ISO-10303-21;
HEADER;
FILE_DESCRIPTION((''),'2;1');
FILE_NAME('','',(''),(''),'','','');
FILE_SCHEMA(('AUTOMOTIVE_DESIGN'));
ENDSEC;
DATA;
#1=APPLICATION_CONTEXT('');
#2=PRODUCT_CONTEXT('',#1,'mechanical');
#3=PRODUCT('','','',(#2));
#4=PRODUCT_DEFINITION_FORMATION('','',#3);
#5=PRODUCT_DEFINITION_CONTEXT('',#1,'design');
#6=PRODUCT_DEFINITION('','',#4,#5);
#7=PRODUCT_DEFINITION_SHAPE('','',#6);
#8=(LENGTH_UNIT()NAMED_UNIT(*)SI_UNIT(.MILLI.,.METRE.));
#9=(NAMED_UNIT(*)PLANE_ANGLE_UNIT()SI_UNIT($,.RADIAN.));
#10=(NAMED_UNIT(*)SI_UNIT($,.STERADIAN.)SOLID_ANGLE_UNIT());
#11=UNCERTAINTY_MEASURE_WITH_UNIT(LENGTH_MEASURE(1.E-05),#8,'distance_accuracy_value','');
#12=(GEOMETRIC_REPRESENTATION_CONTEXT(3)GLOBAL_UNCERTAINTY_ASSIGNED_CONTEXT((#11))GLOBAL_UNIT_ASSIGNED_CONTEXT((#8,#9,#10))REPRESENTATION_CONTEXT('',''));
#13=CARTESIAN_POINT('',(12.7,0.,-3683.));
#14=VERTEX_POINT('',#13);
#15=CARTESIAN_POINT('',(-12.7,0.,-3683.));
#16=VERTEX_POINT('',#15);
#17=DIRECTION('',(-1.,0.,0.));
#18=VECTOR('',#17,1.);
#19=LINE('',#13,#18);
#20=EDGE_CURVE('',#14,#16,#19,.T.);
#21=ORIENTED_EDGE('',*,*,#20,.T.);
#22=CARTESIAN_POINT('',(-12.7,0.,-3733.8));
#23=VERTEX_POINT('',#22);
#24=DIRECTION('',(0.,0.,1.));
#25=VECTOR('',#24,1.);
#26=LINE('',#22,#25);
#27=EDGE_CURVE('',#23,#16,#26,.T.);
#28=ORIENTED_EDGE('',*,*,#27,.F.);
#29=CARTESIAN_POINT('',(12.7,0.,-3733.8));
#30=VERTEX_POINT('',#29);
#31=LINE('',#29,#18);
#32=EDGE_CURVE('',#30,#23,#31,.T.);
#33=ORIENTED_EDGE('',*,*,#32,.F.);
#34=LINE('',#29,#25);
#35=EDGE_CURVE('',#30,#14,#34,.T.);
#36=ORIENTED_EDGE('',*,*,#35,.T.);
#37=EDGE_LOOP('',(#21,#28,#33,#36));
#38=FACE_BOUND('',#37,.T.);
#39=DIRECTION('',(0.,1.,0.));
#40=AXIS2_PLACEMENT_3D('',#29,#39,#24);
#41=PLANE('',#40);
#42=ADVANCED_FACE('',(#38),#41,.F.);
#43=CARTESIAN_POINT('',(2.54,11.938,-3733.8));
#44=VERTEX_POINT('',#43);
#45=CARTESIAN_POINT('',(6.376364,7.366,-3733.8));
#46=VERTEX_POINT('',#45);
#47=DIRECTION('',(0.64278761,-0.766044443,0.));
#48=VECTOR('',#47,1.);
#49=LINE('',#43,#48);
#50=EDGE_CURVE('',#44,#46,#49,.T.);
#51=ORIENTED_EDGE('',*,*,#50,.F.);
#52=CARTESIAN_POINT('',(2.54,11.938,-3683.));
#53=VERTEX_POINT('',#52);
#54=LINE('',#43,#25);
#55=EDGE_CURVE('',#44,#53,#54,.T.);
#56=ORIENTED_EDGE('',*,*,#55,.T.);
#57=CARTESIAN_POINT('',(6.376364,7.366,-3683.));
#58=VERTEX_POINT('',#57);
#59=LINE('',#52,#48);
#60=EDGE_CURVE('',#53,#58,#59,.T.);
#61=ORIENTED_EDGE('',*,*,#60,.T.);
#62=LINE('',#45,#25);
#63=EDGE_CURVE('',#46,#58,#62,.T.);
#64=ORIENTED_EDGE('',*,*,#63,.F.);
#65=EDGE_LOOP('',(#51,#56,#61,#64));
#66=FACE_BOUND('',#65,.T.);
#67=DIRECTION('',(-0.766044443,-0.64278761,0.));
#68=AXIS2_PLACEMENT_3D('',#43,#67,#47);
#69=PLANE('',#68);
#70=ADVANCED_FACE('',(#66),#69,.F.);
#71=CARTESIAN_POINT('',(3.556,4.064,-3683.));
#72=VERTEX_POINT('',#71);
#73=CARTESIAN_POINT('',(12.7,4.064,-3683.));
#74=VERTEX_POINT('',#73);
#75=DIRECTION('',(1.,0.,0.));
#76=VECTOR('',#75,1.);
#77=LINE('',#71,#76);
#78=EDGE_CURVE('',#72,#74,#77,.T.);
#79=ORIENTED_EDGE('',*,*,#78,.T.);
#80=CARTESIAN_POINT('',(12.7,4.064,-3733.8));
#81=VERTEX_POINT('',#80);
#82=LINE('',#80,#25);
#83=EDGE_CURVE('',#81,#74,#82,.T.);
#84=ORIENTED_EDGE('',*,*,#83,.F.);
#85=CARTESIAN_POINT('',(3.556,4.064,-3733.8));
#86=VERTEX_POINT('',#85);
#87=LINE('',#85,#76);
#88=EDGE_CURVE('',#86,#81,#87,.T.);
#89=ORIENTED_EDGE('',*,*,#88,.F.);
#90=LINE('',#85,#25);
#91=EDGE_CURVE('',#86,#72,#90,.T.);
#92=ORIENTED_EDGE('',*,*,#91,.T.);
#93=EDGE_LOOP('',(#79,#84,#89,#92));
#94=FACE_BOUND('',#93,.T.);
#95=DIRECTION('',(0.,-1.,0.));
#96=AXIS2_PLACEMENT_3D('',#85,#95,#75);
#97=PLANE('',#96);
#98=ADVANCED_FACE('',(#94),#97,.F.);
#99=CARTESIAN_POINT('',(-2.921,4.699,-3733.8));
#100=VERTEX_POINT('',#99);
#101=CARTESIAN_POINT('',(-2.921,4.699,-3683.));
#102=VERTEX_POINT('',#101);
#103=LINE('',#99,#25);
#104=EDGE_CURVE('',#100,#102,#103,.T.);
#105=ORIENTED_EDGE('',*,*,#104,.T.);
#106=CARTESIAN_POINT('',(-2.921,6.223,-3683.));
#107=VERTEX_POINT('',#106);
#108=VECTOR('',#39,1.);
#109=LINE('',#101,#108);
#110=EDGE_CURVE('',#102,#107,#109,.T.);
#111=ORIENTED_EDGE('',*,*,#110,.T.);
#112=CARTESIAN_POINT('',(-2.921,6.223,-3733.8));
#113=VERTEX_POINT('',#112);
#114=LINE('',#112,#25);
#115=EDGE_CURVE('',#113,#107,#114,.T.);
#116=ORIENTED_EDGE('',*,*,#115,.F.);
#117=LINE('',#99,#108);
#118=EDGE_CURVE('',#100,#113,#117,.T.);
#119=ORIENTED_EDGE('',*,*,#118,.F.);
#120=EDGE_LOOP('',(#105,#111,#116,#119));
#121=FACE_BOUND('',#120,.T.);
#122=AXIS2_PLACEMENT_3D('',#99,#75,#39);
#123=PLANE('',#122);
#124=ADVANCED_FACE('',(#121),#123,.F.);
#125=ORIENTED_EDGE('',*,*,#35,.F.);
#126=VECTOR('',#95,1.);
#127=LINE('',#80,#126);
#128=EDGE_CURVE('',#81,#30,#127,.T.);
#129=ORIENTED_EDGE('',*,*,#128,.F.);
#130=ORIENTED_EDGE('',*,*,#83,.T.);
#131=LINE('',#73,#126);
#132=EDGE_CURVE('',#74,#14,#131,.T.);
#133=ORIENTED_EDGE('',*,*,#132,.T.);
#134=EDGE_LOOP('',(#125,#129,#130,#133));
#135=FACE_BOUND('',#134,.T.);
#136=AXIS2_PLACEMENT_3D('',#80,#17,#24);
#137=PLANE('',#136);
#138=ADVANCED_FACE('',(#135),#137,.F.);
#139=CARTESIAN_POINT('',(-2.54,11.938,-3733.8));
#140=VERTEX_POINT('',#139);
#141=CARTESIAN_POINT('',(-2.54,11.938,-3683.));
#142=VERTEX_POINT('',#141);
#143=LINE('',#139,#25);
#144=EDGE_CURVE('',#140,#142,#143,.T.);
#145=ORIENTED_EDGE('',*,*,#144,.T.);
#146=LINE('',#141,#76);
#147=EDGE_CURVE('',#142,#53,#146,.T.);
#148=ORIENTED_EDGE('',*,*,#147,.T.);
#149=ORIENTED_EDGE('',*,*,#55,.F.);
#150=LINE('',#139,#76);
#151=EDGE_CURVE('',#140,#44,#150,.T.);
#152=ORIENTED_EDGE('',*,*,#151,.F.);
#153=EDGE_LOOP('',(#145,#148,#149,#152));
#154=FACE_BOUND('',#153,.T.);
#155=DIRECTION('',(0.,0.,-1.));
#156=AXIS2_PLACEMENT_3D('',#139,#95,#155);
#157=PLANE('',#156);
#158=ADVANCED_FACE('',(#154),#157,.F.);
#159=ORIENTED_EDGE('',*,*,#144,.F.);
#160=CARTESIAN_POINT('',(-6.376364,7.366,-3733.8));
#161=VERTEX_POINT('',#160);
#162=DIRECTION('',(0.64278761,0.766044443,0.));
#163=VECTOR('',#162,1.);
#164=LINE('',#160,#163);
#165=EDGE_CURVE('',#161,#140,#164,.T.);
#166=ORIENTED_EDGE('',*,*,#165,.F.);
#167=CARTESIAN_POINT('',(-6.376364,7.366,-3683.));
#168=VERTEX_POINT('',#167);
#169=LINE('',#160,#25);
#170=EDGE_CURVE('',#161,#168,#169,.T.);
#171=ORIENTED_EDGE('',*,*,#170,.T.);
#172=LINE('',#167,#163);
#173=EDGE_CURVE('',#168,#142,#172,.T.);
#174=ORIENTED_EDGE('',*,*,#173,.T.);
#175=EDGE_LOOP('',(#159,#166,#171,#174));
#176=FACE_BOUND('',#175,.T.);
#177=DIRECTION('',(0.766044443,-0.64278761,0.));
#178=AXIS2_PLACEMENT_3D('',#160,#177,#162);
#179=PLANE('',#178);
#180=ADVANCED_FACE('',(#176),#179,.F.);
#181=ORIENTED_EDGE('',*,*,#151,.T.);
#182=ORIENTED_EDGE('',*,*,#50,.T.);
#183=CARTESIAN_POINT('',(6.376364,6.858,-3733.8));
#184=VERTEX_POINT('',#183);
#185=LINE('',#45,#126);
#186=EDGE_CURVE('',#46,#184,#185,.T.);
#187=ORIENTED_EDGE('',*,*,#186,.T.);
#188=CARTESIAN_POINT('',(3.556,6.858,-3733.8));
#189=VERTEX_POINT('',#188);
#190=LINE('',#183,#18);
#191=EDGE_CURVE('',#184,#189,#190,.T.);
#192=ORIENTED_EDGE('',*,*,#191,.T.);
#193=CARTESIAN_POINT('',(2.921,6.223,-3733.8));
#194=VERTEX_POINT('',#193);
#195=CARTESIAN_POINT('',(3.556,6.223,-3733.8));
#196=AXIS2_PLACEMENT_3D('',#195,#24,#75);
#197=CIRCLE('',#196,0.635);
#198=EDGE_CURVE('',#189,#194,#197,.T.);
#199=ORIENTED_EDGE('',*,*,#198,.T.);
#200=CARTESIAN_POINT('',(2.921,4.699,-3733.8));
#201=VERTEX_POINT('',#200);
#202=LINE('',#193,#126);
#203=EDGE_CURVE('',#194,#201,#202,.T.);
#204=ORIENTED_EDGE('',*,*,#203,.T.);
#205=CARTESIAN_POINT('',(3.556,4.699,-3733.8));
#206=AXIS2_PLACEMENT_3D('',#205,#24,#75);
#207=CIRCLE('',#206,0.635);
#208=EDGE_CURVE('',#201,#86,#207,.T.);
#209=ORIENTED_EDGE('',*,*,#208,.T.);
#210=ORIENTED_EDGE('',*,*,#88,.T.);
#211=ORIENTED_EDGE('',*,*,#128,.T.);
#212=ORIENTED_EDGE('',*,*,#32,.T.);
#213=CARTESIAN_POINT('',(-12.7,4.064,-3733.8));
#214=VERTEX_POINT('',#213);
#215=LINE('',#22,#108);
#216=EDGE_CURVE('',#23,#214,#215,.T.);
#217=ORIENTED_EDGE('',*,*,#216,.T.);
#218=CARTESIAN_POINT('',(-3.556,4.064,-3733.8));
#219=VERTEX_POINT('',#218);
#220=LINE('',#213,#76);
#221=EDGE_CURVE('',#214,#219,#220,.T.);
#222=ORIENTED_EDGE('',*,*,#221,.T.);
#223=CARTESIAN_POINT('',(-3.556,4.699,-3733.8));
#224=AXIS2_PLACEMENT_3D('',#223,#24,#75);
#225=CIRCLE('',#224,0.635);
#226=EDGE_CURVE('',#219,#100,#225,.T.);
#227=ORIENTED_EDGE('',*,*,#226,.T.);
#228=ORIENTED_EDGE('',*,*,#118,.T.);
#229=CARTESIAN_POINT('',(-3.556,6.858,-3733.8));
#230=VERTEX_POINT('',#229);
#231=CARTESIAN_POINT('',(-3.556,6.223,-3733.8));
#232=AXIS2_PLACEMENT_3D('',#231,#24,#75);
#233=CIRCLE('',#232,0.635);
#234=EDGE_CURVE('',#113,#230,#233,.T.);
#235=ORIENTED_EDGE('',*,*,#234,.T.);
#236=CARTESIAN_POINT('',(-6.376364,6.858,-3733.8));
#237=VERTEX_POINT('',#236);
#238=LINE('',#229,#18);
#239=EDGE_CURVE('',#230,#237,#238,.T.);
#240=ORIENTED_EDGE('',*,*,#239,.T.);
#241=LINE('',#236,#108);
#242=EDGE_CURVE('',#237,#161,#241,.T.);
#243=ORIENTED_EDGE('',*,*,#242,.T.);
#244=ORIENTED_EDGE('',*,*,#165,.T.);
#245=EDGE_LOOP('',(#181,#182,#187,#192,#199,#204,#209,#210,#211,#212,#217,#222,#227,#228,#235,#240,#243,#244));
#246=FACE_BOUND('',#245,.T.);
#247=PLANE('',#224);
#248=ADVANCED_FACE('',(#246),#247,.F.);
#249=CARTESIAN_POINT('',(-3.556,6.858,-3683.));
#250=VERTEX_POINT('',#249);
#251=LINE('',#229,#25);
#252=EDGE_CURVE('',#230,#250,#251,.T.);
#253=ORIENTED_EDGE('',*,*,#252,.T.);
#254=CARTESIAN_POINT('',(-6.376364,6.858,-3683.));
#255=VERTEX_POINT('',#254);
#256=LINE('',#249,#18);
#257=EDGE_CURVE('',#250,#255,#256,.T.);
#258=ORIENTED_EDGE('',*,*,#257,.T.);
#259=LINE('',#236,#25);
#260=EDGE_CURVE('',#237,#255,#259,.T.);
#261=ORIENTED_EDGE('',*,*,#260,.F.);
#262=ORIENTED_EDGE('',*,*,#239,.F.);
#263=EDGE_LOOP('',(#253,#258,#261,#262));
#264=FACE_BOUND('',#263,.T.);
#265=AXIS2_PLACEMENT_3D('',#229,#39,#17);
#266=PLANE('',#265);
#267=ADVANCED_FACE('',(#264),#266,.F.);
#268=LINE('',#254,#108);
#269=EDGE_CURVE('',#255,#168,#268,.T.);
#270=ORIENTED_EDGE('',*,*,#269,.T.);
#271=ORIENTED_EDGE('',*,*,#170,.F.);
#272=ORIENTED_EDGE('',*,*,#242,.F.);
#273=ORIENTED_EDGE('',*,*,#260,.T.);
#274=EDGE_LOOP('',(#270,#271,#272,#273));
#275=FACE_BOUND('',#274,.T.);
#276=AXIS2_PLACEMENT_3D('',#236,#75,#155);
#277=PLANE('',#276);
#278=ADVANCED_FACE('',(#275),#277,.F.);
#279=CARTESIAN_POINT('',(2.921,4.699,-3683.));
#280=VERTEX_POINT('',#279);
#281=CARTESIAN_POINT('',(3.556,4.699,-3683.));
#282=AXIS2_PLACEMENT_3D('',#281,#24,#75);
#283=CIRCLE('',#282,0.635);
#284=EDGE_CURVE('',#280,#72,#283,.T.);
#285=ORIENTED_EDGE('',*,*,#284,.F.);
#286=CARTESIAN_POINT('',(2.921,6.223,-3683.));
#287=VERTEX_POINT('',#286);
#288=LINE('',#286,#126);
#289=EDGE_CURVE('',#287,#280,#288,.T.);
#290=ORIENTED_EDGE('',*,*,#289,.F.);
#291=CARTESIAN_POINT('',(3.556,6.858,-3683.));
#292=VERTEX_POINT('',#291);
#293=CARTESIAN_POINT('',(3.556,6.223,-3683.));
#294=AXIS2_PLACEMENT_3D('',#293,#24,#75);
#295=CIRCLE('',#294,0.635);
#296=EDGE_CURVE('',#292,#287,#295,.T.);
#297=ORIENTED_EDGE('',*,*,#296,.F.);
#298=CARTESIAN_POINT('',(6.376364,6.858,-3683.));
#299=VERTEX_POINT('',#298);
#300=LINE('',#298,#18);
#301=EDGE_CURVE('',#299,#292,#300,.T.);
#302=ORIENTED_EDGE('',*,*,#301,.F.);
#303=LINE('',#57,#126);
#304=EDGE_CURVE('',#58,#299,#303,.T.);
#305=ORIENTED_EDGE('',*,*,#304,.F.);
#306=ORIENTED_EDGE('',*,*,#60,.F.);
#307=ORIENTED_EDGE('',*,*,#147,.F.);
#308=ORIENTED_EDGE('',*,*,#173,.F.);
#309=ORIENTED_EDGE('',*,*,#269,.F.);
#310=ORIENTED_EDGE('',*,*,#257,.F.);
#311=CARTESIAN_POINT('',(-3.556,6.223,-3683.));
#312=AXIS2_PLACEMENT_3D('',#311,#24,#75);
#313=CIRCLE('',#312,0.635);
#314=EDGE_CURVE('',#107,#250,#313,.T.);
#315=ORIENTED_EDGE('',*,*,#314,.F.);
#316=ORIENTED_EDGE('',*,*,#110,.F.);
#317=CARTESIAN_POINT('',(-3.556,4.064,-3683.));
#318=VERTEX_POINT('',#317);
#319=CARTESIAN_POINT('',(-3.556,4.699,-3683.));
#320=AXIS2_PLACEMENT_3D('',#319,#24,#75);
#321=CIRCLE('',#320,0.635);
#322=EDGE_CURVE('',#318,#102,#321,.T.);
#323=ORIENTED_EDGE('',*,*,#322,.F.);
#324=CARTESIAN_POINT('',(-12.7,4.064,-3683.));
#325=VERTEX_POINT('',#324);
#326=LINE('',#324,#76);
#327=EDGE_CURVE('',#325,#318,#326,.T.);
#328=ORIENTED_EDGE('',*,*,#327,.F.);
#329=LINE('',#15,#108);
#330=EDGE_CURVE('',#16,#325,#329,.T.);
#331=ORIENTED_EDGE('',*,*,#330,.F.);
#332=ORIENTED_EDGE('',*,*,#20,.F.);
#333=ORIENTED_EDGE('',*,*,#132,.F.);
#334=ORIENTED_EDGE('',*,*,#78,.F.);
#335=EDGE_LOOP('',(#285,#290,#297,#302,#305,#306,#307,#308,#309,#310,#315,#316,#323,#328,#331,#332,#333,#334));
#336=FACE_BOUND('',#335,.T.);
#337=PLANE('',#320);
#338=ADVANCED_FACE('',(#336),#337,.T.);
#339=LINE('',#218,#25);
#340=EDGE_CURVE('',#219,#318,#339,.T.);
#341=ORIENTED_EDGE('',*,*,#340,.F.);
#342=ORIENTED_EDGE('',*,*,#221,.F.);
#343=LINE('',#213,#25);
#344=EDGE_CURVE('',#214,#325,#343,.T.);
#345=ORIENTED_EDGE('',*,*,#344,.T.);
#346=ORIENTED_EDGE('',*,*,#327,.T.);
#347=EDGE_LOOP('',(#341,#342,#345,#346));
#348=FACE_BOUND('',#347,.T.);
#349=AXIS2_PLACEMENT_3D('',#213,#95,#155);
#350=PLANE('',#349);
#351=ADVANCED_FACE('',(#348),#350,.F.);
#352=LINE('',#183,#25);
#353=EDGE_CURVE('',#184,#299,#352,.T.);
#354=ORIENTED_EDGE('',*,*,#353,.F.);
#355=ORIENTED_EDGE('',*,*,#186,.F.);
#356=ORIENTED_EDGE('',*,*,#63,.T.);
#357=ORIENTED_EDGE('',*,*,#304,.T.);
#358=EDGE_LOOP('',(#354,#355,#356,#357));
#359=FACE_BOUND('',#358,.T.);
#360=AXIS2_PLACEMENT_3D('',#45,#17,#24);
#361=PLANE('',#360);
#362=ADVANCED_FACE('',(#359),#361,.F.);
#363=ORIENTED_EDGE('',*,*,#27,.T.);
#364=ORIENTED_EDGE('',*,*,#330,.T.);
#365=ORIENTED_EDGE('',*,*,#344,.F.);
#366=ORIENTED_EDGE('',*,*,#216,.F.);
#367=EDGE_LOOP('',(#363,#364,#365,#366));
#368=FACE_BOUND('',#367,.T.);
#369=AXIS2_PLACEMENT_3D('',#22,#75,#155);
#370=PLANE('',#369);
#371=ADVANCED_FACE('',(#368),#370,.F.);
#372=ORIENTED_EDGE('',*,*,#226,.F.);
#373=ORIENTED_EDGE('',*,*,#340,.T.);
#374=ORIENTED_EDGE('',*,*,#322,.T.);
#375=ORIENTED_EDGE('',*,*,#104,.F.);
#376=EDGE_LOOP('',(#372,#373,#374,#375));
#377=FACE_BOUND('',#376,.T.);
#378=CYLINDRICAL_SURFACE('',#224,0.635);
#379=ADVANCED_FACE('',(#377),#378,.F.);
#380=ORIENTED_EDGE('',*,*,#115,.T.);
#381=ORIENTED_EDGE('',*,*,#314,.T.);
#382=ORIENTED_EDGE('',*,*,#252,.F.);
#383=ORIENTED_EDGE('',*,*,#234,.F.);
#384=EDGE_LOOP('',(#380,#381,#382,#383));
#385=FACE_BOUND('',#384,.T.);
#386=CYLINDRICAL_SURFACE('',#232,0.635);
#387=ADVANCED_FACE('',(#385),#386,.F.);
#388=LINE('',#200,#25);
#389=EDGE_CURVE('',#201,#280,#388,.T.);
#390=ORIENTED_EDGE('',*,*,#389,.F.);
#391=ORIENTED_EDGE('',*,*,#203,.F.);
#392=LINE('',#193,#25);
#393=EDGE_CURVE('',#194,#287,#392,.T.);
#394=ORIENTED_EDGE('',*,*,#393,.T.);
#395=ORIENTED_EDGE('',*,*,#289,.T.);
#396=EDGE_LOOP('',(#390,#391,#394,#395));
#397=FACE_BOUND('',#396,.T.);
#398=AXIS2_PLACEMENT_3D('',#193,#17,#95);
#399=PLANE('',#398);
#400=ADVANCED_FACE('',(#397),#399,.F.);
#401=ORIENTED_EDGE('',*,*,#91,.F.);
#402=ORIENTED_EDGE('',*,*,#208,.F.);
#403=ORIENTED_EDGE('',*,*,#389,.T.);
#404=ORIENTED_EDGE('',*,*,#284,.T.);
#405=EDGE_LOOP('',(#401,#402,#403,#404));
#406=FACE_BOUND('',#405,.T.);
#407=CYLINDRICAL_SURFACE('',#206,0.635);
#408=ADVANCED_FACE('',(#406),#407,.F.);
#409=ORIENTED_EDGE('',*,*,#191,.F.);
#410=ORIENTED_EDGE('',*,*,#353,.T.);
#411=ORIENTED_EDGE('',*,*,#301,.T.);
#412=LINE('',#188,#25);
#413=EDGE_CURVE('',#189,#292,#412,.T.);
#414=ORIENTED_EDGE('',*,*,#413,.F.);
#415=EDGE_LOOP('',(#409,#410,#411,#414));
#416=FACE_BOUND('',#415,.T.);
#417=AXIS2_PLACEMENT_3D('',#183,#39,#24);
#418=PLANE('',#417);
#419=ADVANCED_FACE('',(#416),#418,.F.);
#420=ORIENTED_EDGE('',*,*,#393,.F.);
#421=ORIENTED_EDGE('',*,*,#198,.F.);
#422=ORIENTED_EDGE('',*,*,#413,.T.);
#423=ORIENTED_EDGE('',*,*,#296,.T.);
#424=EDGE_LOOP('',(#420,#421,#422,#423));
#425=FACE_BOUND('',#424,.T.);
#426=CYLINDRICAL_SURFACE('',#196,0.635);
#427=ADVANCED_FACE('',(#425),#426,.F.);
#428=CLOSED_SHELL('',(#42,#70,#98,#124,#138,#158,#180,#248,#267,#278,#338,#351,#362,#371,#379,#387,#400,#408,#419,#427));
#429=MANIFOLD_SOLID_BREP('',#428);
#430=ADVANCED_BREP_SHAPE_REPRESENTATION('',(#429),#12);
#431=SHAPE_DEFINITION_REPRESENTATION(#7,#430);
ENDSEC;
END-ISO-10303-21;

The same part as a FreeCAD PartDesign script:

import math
import FreeCAD as App
import Part
import Sketcher

V = App.Vector
Q = App.Units.Quantity

doc = App.newDocument("Part")
body = doc.addObject("PartDesign::Body", "Body")

# Sketch on XY plane
sketch1 = doc.addObject("Sketcher::SketchObject", "Sketch")
body.addObject(sketch1)
sketch1.AttachmentSupport = (doc.XY_Plane, [""])
sketch1.MapMode = "FlatFace"
sketch1.AttachmentOffset = App.Placement(V(0, 0, -145 * 25.4), App.Rotation())
sketch1.addGeometry([
    Part.LineSegment(V(-12.7, 4.064, 0), V(-3.556, 4.064, 0)),  # 0
    Part.ArcOfCircle(Part.Circle(V(-3.556, 4.699, 0), V(0, 0, 1), 0.635), math.radians(-90), math.radians(0)),  # 1
    Part.LineSegment(V(-2.921, 4.699, 0), V(-2.921, 6.223, 0)),  # 2
    Part.ArcOfCircle(Part.Circle(V(-3.556, 6.223, 0), V(0, 0, 1), 0.635), math.radians(0), math.radians(90)),  # 3
    Part.LineSegment(V(-3.556, 6.858, 0), V(-6.376364, 6.858, 0)),  # 4
    Part.LineSegment(V(-6.376364, 6.858, 0), V(-6.376364, 7.366, 0)),  # 5
    Part.LineSegment(V(-6.376364, 7.366, 0), V(-2.54, 11.938, 0)),  # 6
    Part.LineSegment(V(-2.54, 11.938, 0), V(2.54, 11.938, 0)),  # 7
    Part.LineSegment(V(2.54, 11.938, 0), V(6.376364, 7.366, 0)),  # 8
    Part.LineSegment(V(6.376364, 7.366, 0), V(6.376364, 6.858, 0)),  # 9
    Part.LineSegment(V(6.376364, 6.858, 0), V(3.556, 6.858, 0)),  # 10
    Part.ArcOfCircle(Part.Circle(V(3.556, 6.223, 0), V(0, 0, 1), 0.635), math.radians(90), math.radians(180)),  # 11
    Part.LineSegment(V(2.921, 6.223, 0), V(2.921, 4.699, 0)),  # 12
    Part.ArcOfCircle(Part.Circle(V(3.556, 4.699, 0), V(0, 0, 1), 0.635), math.radians(180), math.radians(270)),  # 13
    Part.LineSegment(V(3.556, 4.064, 0), V(12.7, 4.064, 0)),  # 14
    Part.LineSegment(V(12.7, 4.064, 0), V(12.7, 0, 0)),  # 15
    Part.LineSegment(V(12.7, 0, 0), V(-12.7, 0, 0)),  # 16
    Part.LineSegment(V(-12.7, 0, 0), V(-12.7, 4.064, 0)),  # 17
], False)
sketch1.addConstraint([
    Sketcher.Constraint("Tangent", 0, 2, 1, 1),
    Sketcher.Constraint("Tangent", 1, 2, 2, 1),
    Sketcher.Constraint("Tangent", 2, 2, 3, 1),
    Sketcher.Constraint("Tangent", 3, 2, 4, 1),
    Sketcher.Constraint("Coincident", 4, 2, 5, 1),
    Sketcher.Constraint("Coincident", 5, 2, 6, 1),
    Sketcher.Constraint("Coincident", 6, 2, 7, 1),
    Sketcher.Constraint("Coincident", 7, 2, 8, 1),
    Sketcher.Constraint("Coincident", 8, 2, 9, 1),
    Sketcher.Constraint("Coincident", 9, 2, 10, 1),
    Sketcher.Constraint("Tangent", 10, 2, 11, 1),
    Sketcher.Constraint("Tangent", 11, 2, 12, 1),
    Sketcher.Constraint("Tangent", 12, 2, 13, 1),
    Sketcher.Constraint("Tangent", 13, 2, 14, 1),
    Sketcher.Constraint("Coincident", 14, 2, 15, 1),
    Sketcher.Constraint("Coincident", 15, 2, 16, 1),
    Sketcher.Constraint("Coincident", 16, 2, 17, 1),
    Sketcher.Constraint("Coincident", 17, 2, 0, 1),
    Sketcher.Constraint("Horizontal", 0),
    Sketcher.Constraint("Vertical", 2),
    Sketcher.Constraint("Horizontal", 4),
    Sketcher.Constraint("Vertical", 5),
    Sketcher.Constraint("Horizontal", 7),
    Sketcher.Constraint("Vertical", 9),
    Sketcher.Constraint("Horizontal", 10),
    Sketcher.Constraint("Vertical", 12),
    Sketcher.Constraint("Horizontal", 14),
    Sketcher.Constraint("Vertical", 15),
    Sketcher.Constraint("Horizontal", 16),
    Sketcher.Constraint("Vertical", 17),
    Sketcher.Constraint("Equal", 1, 3),
    Sketcher.Constraint("Equal", 3, 11),
    Sketcher.Constraint("Equal", 11, 13),
    Sketcher.Constraint("Symmetric", 15, 2, 16, 2, -1, 1),
    Sketcher.Constraint("Symmetric", 3, 3, 11, 3, -2),
    Sketcher.Constraint("Symmetric", 5, 2, 8, 2, -2),
    Sketcher.Constraint("Horizontal", 1, 3, 13, 3),
    Sketcher.Constraint("Equal", 6, 8),
    Sketcher.Constraint("DistanceX", 16, 2, 16, 1, Q("1 in")),
    Sketcher.Constraint("DistanceX", 7, 1, 7, 2, Q("0.2 in")),
    Sketcher.Constraint("Angle", 6, Q("50 deg")),
    Sketcher.Constraint("Radius", 1, Q("0.025 in")),
    Sketcher.Constraint("DistanceX", 0, 1, 0, 2, Q("0.36 in")),
    Sketcher.Constraint("DistanceY", 2, 1, 2, 2, Q("0.06 in")),
    Sketcher.Constraint("DistanceY", 5, 1, 5, 2, Q("0.02 in")),
    Sketcher.Constraint("DistanceY", 15, 2, 15, 1, Q("0.16 in")),
    Sketcher.Constraint("DistanceY", 3, 2, 6, 2, Q("0.2 in")),
])
pad1 = doc.addObject("PartDesign::Pad", "Pad")
body.addObject(pad1)
pad1.Profile = sketch1
pad1.Length = Q("2 in")
pad1.Reversed = True

doc.recompute()
